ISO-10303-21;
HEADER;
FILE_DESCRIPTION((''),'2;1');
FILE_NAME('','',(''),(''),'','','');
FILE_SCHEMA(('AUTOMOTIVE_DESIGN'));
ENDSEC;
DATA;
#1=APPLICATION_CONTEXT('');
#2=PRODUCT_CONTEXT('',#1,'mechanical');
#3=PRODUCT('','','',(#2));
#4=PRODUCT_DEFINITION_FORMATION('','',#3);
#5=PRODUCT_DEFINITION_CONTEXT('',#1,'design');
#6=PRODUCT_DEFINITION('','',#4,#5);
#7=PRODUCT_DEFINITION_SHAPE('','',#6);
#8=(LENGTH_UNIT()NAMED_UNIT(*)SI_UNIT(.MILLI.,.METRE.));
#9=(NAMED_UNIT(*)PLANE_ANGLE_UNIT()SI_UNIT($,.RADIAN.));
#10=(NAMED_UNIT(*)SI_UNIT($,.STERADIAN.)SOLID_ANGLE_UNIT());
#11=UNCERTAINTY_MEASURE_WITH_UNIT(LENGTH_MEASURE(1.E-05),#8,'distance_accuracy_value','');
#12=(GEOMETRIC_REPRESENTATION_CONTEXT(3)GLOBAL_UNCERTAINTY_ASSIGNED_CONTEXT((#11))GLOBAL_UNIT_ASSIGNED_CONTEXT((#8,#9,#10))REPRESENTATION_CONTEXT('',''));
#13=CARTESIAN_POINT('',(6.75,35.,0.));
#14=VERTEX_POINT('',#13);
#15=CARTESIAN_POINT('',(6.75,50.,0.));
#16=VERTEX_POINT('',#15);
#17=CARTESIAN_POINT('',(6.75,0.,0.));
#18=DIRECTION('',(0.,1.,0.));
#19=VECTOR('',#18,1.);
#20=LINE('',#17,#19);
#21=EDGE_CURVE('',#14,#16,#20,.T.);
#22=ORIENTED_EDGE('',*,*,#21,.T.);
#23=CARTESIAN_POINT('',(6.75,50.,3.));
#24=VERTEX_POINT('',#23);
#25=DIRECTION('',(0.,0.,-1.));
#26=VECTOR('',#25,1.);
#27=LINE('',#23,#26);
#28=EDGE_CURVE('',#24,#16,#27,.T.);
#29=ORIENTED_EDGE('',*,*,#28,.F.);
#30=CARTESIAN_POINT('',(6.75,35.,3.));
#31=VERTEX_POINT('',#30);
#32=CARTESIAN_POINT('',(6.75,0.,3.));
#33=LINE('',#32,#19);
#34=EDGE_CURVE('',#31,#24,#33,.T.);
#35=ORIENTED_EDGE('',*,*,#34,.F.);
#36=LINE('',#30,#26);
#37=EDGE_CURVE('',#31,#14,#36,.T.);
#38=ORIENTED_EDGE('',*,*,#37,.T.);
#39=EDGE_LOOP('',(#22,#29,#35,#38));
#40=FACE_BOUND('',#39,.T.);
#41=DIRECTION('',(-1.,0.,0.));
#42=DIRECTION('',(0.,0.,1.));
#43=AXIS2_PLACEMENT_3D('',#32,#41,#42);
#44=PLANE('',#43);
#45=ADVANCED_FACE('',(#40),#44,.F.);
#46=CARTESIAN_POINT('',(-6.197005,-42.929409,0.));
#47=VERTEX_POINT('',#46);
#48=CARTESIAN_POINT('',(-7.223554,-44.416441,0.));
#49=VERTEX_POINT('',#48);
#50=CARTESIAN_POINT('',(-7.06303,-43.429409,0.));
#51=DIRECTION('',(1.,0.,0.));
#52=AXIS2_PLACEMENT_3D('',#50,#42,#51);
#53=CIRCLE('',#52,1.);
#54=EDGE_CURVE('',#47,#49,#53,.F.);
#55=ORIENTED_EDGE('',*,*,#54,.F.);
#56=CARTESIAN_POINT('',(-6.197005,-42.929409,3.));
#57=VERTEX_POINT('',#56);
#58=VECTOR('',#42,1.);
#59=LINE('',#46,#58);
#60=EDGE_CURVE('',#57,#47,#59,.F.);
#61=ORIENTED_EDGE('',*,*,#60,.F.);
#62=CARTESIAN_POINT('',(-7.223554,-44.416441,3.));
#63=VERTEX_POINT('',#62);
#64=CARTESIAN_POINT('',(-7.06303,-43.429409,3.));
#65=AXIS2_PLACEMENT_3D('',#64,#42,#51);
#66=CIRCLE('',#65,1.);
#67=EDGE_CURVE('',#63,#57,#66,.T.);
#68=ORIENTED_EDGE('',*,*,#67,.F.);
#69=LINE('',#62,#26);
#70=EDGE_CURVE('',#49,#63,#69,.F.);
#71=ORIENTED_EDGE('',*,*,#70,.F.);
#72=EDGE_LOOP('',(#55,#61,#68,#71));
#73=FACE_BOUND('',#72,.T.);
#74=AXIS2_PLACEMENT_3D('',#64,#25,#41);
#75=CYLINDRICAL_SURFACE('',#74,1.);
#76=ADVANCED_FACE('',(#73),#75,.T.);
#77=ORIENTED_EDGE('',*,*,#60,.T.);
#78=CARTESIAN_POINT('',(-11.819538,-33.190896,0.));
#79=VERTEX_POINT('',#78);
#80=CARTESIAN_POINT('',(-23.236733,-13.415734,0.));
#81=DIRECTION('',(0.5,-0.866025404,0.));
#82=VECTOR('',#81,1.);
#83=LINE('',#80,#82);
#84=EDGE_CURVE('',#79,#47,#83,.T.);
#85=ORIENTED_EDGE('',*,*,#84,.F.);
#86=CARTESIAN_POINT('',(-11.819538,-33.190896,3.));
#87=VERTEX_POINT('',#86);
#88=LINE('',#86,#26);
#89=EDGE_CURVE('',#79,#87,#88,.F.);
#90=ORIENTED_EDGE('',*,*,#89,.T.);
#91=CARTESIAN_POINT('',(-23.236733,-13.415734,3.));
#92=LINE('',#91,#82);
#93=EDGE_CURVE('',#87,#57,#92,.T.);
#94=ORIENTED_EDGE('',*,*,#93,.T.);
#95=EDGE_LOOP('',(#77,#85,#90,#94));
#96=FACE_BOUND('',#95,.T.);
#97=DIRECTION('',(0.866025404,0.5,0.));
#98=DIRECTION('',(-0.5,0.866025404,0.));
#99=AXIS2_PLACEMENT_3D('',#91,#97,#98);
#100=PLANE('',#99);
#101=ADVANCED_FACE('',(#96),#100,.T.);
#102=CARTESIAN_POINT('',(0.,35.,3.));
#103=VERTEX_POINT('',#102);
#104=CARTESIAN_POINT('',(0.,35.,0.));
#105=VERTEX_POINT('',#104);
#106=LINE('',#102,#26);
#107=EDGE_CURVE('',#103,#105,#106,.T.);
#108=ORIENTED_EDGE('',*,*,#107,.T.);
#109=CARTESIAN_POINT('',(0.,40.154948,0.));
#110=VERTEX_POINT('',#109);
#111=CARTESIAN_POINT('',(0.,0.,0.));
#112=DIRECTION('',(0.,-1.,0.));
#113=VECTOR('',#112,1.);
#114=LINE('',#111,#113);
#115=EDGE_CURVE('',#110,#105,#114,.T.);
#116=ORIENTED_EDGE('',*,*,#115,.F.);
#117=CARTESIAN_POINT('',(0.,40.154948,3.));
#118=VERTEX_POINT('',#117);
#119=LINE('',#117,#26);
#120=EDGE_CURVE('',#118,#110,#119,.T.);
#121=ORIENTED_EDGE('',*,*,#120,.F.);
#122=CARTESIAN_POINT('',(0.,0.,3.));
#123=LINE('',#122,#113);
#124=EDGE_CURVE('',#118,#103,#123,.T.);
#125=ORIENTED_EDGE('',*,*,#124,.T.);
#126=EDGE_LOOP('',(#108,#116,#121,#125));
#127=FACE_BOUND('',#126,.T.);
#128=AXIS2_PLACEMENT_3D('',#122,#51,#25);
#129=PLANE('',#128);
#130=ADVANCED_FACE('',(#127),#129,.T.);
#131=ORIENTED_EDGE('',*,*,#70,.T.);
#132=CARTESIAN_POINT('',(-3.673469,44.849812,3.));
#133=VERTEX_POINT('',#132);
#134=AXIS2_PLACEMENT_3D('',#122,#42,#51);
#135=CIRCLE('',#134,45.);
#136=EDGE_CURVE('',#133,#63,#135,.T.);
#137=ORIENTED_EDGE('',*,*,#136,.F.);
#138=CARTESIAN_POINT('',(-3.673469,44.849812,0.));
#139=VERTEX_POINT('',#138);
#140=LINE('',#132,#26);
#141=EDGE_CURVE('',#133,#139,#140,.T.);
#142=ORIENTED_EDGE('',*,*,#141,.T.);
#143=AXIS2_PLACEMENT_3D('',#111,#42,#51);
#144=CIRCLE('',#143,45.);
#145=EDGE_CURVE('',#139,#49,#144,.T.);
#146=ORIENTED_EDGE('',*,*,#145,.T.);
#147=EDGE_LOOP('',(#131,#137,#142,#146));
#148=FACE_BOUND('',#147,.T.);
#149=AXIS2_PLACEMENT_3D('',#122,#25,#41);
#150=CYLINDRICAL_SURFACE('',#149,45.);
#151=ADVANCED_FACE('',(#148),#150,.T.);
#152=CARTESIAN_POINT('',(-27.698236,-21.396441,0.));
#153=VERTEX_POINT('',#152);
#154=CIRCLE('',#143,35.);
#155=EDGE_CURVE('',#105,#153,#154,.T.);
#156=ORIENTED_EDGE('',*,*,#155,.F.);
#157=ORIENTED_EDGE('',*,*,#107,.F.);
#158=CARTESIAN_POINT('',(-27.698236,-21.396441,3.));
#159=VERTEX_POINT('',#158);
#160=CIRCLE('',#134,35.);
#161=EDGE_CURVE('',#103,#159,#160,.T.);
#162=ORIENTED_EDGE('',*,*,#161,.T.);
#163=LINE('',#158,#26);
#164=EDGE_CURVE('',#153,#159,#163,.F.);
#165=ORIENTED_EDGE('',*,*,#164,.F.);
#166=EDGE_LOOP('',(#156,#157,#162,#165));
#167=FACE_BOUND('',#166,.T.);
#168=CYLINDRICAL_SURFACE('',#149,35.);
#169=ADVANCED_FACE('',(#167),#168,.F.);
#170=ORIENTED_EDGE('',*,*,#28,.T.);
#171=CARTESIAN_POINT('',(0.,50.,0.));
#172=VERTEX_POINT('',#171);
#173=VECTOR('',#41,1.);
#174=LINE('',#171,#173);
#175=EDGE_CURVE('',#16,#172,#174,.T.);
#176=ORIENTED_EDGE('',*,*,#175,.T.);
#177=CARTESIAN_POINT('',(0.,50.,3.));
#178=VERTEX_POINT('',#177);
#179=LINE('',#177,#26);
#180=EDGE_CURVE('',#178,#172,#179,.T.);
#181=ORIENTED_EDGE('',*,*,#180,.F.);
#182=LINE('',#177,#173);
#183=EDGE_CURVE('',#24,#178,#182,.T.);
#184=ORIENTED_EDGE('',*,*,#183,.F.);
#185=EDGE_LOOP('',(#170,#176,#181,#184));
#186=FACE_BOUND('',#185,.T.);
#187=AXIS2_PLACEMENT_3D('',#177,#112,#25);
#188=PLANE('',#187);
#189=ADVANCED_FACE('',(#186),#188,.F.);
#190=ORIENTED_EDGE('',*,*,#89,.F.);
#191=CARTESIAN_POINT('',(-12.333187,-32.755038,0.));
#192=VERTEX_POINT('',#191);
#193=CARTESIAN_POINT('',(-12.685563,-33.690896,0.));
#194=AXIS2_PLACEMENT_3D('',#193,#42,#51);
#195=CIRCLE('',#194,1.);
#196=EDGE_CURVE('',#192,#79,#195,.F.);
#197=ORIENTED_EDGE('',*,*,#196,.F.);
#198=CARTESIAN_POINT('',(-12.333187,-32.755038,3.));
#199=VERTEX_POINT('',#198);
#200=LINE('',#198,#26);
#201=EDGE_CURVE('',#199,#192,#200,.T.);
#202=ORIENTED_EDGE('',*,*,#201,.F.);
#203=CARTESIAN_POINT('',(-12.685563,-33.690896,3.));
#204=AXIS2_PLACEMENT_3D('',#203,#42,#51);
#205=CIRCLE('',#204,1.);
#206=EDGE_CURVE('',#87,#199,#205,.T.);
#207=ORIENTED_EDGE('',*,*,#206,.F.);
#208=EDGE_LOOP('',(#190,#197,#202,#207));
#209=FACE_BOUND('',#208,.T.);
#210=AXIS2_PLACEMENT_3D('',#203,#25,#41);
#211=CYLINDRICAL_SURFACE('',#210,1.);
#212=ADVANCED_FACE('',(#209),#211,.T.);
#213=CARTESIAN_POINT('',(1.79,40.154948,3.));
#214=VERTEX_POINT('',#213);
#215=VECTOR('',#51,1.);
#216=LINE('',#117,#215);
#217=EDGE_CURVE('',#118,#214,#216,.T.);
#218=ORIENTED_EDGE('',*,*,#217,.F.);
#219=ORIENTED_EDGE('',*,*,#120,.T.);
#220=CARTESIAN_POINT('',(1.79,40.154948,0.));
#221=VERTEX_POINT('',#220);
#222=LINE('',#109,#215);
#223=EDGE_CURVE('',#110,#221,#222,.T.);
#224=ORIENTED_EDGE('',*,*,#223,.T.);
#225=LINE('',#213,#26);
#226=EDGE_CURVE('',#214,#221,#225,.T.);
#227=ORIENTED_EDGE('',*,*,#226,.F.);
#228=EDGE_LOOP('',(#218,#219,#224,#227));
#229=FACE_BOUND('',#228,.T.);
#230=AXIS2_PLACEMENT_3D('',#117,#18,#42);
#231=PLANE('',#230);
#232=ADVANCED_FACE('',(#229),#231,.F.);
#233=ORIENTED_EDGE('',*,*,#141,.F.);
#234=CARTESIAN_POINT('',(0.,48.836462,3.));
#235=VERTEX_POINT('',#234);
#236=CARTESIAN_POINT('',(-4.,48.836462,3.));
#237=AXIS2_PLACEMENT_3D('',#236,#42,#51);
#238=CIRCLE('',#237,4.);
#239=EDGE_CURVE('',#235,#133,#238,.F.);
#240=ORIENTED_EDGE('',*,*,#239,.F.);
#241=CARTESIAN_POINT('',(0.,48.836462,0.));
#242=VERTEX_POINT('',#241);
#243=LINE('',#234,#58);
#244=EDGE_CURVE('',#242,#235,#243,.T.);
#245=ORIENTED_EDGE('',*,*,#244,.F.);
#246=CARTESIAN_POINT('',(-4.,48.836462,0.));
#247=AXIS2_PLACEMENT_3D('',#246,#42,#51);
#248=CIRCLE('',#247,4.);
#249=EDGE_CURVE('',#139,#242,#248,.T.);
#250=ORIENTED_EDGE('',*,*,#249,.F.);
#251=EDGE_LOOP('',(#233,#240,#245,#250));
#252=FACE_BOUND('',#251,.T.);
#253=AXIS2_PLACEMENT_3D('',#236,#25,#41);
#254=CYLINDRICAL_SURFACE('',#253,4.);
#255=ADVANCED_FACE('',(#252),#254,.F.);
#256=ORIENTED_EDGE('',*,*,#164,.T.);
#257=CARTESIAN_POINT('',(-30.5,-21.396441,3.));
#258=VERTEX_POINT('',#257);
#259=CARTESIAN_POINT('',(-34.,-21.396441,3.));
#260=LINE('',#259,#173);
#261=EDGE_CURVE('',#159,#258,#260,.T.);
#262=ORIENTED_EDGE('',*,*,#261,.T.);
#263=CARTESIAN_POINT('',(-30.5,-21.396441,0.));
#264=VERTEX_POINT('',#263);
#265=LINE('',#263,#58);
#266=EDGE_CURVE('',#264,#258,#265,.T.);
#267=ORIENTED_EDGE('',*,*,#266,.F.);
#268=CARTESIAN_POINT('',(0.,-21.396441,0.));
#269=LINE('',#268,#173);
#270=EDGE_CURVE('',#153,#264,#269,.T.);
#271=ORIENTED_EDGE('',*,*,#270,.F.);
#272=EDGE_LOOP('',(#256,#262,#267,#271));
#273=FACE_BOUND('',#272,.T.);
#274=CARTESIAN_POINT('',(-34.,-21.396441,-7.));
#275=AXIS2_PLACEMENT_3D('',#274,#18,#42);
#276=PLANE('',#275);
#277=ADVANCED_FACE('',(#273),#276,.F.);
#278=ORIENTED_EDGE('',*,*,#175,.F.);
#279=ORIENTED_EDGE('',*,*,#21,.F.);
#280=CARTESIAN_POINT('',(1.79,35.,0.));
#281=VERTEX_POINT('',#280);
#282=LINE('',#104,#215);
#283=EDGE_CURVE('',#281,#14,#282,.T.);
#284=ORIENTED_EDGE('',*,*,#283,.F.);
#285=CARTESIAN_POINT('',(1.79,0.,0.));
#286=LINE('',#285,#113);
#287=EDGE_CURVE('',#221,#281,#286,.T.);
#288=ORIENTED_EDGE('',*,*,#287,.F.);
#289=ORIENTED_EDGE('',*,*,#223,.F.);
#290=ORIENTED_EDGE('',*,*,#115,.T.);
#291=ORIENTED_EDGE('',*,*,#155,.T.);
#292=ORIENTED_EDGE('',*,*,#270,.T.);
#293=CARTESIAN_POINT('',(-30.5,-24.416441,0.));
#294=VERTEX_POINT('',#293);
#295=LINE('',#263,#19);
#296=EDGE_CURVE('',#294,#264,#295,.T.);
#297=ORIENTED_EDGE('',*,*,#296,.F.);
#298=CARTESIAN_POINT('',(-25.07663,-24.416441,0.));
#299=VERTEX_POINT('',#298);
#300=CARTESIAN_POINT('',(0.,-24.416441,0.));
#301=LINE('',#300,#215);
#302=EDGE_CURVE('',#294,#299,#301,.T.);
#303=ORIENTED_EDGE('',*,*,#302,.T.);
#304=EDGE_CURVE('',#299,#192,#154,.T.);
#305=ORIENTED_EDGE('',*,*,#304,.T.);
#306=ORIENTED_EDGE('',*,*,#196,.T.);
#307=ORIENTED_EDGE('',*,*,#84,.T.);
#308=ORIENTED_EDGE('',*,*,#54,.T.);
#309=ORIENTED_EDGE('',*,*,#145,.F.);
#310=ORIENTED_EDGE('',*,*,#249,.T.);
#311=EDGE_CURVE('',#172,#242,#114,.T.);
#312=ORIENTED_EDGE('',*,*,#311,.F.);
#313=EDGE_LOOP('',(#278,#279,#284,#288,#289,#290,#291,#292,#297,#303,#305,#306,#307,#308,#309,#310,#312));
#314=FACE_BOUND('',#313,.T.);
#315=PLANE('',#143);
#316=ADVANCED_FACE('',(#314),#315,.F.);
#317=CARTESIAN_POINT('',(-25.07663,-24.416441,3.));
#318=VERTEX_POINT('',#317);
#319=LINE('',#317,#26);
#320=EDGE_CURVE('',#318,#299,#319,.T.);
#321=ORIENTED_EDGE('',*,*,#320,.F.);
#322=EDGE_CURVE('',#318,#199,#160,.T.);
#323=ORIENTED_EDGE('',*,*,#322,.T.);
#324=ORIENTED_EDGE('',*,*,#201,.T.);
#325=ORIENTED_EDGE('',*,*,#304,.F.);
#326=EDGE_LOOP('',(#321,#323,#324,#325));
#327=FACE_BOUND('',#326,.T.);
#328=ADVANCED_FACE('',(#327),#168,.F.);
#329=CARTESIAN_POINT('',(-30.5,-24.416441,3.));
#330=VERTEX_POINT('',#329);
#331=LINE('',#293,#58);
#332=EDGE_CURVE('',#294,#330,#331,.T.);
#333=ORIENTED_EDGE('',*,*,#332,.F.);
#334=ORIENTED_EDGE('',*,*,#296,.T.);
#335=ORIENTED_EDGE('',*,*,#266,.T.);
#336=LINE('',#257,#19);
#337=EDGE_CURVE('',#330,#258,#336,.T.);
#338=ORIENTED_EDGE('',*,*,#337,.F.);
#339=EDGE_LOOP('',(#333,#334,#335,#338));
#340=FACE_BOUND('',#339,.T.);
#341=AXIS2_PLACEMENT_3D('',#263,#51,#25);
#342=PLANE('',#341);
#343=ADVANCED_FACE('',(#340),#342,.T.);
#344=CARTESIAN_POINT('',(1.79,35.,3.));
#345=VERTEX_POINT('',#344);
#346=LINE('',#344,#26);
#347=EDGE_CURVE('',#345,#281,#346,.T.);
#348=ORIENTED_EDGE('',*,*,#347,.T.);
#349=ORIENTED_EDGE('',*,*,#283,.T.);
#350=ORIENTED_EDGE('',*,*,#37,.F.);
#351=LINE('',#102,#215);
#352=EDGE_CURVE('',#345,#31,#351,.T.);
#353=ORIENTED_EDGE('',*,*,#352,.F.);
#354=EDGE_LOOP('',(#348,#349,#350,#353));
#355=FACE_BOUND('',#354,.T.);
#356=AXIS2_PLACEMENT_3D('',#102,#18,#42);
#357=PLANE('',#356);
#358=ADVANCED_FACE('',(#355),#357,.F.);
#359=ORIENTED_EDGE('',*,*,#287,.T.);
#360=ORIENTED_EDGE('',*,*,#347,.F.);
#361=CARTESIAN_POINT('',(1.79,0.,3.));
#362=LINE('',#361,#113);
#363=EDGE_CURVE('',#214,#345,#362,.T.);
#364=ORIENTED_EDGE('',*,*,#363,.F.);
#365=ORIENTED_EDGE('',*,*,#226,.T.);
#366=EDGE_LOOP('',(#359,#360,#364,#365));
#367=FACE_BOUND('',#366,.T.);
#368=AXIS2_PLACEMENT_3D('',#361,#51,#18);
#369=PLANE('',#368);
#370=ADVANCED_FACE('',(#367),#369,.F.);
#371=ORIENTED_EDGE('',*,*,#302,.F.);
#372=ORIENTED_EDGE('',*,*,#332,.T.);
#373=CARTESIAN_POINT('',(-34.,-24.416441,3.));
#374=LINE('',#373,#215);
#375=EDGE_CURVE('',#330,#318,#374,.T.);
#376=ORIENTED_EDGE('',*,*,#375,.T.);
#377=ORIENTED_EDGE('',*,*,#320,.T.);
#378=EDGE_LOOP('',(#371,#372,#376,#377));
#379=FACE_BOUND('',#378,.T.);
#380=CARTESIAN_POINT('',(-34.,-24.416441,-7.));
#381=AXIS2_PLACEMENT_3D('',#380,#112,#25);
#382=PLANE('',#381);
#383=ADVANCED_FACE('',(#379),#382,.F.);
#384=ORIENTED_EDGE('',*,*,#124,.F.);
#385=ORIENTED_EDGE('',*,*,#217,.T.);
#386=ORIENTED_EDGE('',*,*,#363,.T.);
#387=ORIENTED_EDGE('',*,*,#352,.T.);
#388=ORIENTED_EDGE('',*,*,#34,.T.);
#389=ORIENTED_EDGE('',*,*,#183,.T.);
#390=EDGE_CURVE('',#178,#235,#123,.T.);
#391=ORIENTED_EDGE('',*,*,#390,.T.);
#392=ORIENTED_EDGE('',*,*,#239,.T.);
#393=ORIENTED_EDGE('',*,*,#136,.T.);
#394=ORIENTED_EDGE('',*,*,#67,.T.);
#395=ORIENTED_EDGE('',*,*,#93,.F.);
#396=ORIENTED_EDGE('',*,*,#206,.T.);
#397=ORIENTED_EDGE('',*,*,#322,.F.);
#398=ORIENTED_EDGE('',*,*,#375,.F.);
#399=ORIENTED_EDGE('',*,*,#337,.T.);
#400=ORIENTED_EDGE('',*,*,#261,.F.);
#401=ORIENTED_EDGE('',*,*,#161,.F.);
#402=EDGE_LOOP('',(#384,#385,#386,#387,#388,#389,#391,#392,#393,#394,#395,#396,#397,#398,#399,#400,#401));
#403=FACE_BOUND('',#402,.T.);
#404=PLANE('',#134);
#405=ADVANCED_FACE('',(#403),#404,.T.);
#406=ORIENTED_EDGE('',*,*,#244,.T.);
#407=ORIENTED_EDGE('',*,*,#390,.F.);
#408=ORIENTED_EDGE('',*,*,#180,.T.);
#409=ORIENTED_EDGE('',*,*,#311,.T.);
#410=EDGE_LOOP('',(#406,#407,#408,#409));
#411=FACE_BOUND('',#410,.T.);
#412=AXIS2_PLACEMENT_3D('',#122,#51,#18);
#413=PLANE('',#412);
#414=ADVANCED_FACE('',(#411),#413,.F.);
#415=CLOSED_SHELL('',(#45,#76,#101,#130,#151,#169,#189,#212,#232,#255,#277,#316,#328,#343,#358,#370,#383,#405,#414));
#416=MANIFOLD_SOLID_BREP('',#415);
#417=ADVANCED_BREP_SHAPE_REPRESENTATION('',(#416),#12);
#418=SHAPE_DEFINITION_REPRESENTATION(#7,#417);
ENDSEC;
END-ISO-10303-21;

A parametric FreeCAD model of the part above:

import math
import FreeCAD as App
import Part
import Sketcher
from FreeCAD import Vector
Q = App.Units.Quantity


def edges_at(feature, points):
    """Names of the edges that pass closest to the given points."""
    edges = feature.Shape.Edges
    near = lambda p: min(range(len(edges)), key=lambda i: edges[i].distToShape(Part.Vertex(*p))[0])
    return sorted({f"Edge{near(p) + 1}" for p in points})

doc = App.newDocument("Part")
body = doc.addObject("PartDesign::Body", "Body")

# Sketch on XY plane
sketch1 = doc.addObject("Sketcher::SketchObject", "Sketch")
body.addObject(sketch1)
sketch1.AttachmentSupport = (doc.XY_Plane, [""])
sketch1.MapMode = "FlatFace"
sketch1.addGeometry([
    Part.LineSegment(Vector(0, 35, 0), Vector(0, 40.2, 0)),  # 0
    Part.LineSegment(Vector(0, 40.2, 0), Vector(1.8, 40.2, 0)),  # 1
    Part.LineSegment(Vector(1.8, 40.2, 0), Vector(1.8, 35, 0)),  # 2
    Part.LineSegment(Vector(1.8, 35, 0), Vector(6.8, 35, 0)),  # 3
    Part.LineSegment(Vector(6.8, 35, 0), Vector(6.8, 50, 0)),  # 4
    Part.LineSegment(Vector(6.8, 50, 0), Vector(0, 50, 0)),  # 5
    Part.LineSegment(Vector(0, 50, 0), Vector(0, 45, 0)),  # 6
    Part.ArcOfCircle(Part.Circle(Vector(0, 0, 0), Vector(0, 0, 1), 45), math.radians(90), math.radians(263)),  # 7
    Part.LineSegment(Vector(-5.2, -44.7, 0), Vector(-12, -32.9, 0)),  # 8
    Part.ArcOfCircle(Part.Circle(Vector(0, 0, 0), Vector(0, 0, 1), 35), math.radians(90), math.radians(250)),  # 9
], False)
sketch1.addConstraint([
    Sketcher.Constraint("Coincident", 0, 2, 1, 1),
    Sketcher.Constraint("Coincident", 1, 2, 2, 1),
    Sketcher.Constraint("Coincident", 2, 2, 3, 1),
    Sketcher.Constraint("Coincident", 3, 2, 4, 1),
    Sketcher.Constraint("Coincident", 4, 2, 5, 1),
    Sketcher.Constraint("Coincident", 5, 2, 6, 1),
    Sketcher.Constraint("Coincident", 6, 2, 7, 1),
    Sketcher.Constraint("Coincident", 7, 2, 8, 1),
    Sketcher.Constraint("Coincident", 8, 2, 9, 2),
    Sketcher.Constraint("Coincident", 9, 1, 0, 1),
    Sketcher.Constraint("Vertical", 0),
    Sketcher.Constraint("Horizontal", 1),
    Sketcher.Constraint("Vertical", 2),
    Sketcher.Constraint("Horizontal", 3),
    Sketcher.Constraint("Vertical", 4),
    Sketcher.Constraint("Horizontal", 5),
    Sketcher.Constraint("Vertical", 6),
    Sketcher.Constraint("Coincident", 7, 3, -1, 1),
    Sketcher.Constraint("Coincident", 9, 3, -1, 1),
    Sketcher.Constraint("PointOnObject", 0, 2, -2),
    Sketcher.Constraint("PointOnObject", 5, 2, -2),
    Sketcher.Constraint("Horizontal", 3, 2, 9, 1),
    Sketcher.Constraint("Radius", 7, 45.0),
    Sketcher.Constraint("Radius", 9, 35.0),
    Sketcher.Constraint("DistanceY", 4, 1, 4, 2, 15.0),
    Sketcher.Constraint("Angle", 8, Q("120 deg")),
    Sketcher.Constraint("DistanceX", 1, 1, 1, 2, 1.79),
    Sketcher.Constraint("DistanceX", 3, 1, 3, 2, 4.96),
    Sketcher.Constraint("Distance", 8, 13.651971),
    Sketcher.Constraint("DistanceY", 0, 1, 0, 2, 5.154948),
])
pad1 = doc.addObject("PartDesign::Pad", "Pad")
body.addObject(pad1)
pad1.Profile = sketch1
pad1.Length = 3
doc.recompute()

fillet = doc.addObject("PartDesign::Fillet", "Fillet")
body.addObject(fillet)
fillet.Base = (pad1, edges_at(pad1, [(0, 45, 1.5)]))
fillet.Radius = 4
doc.recompute()

fillet2 = doc.addObject("PartDesign::Fillet", "Fillet001")
body.addObject(fillet2)
fillet2.Base = (fillet, edges_at(fillet, [(-5.174, -44.702, 1.5)]))
fillet2.Radius = 1
doc.recompute()

fillet3 = doc.addObject("PartDesign::Fillet", "Fillet002")
body.addObject(fillet3)
fillet3.Base = (fillet2, edges_at(fillet2, [(-12, -32.879, 1.5)]))
fillet3.Radius = 1

# Sketch on XY plane
sketch2 = doc.addObject("Sketcher::SketchObject", "Sketch001")
body.addObject(sketch2)
sketch2.AttachmentSupport = (doc.XY_Plane, [""])
sketch2.MapMode = "FlatFace"
sketch2.AttachmentOffset = App.Placement(Vector(0, 0, 3), App.Rotation())
sketch2.addGeometry([
    Part.LineSegment(Vector(-34, -21.4, 0), Vector(-34, -24.4, 0)),
    Part.LineSegment(Vector(-34, -24.4, 0), Vector(34.8, -24.4, 0)),
    Part.LineSegment(Vector(34.8, -24.4, 0), Vector(34.8, -21.4, 0)),
    Part.LineSegment(Vector(34.8, -21.4, 0), Vector(-34, -21.4, 0)),
], False)
sketch2.addConstraint([
    Sketcher.Constraint("Coincident", 0, 2, 1, 1),
    Sketcher.Constraint("Coincident", 1, 2, 2, 1),
    Sketcher.Constraint("Coincident", 2, 2, 3, 1),
    Sketcher.Constraint("Coincident", 3, 2, 0, 1),
    Sketcher.Constraint("Vertical", 0),
    Sketcher.Constraint("Horizontal", 1),
    Sketcher.Constraint("Vertical", 2),
    Sketcher.Constraint("Horizontal", 3),
    Sketcher.Constraint("DistanceX", 0, 2, -1, 1, 34.0),
    Sketcher.Constraint("DistanceY", 0, 2, 0, 1, 3.02),
    Sketcher.Constraint("DistanceX", 1, 1, 1, 2, 68.766076),
    Sketcher.Constraint("DistanceY", 0, 2, -1, 1, 24.416441),
])
pocket1 = doc.addObject("PartDesign::Pocket", "Pocket")
body.addObject(pocket1)
pocket1.Profile = sketch2
pocket1.Length = 10

# Sketch on XY plane
sketch3 = doc.addObject("Sketcher::SketchObject", "Sketch002")
body.addObject(sketch3)
sketch3.AttachmentSupport = (doc.XY_Plane, [""])
sketch3.MapMode = "FlatFace"
sketch3.AttachmentOffset = App.Placement(Vector(0, 0, 3), App.Rotation())
sketch3.addGeometry([
    Part.LineSegment(Vector(-34, -21.4, 0), Vector(-34, -24.4, 0)),
    Part.LineSegment(Vector(-34, -24.4, 0), Vector(-30.5, -24.4, 0)),
    Part.LineSegment(Vector(-30.5, -24.4, 0), Vector(-30.5, -21.4, 0)),
    Part.LineSegment(Vector(-30.5, -21.4, 0), Vector(-34, -21.4, 0)),
], False)
sketch3.addConstraint([
    Sketcher.Constraint("Coincident", 0, 2, 1, 1),
    Sketcher.Constraint("Coincident", 1, 2, 2, 1),
    Sketcher.Constraint("Coincident", 2, 2, 3, 1),
    Sketcher.Constraint("Coincident", 3, 2, 0, 1),
    Sketcher.Constraint("Vertical", 0),
    Sketcher.Constraint("Horizontal", 1),
    Sketcher.Constraint("Vertical", 2),
    Sketcher.Constraint("Horizontal", 3),
    Sketcher.Constraint("DistanceX", 1, 1, 1, 2, 3.5),
    Sketcher.Constraint("DistanceX", 0, 2, -1, 1, 34.0),
    Sketcher.Constraint("DistanceY", 0, 2, 0, 1, 3.02),
    Sketcher.Constraint("DistanceY", 0, 2, -1, 1, 24.416441),
])
pad2 = doc.addObject("PartDesign::Pad", "Pad001")
body.addObject(pad2)
pad2.Profile = sketch3
pad2.Length = 3
pad2.Reversed = True

doc.recompute()
